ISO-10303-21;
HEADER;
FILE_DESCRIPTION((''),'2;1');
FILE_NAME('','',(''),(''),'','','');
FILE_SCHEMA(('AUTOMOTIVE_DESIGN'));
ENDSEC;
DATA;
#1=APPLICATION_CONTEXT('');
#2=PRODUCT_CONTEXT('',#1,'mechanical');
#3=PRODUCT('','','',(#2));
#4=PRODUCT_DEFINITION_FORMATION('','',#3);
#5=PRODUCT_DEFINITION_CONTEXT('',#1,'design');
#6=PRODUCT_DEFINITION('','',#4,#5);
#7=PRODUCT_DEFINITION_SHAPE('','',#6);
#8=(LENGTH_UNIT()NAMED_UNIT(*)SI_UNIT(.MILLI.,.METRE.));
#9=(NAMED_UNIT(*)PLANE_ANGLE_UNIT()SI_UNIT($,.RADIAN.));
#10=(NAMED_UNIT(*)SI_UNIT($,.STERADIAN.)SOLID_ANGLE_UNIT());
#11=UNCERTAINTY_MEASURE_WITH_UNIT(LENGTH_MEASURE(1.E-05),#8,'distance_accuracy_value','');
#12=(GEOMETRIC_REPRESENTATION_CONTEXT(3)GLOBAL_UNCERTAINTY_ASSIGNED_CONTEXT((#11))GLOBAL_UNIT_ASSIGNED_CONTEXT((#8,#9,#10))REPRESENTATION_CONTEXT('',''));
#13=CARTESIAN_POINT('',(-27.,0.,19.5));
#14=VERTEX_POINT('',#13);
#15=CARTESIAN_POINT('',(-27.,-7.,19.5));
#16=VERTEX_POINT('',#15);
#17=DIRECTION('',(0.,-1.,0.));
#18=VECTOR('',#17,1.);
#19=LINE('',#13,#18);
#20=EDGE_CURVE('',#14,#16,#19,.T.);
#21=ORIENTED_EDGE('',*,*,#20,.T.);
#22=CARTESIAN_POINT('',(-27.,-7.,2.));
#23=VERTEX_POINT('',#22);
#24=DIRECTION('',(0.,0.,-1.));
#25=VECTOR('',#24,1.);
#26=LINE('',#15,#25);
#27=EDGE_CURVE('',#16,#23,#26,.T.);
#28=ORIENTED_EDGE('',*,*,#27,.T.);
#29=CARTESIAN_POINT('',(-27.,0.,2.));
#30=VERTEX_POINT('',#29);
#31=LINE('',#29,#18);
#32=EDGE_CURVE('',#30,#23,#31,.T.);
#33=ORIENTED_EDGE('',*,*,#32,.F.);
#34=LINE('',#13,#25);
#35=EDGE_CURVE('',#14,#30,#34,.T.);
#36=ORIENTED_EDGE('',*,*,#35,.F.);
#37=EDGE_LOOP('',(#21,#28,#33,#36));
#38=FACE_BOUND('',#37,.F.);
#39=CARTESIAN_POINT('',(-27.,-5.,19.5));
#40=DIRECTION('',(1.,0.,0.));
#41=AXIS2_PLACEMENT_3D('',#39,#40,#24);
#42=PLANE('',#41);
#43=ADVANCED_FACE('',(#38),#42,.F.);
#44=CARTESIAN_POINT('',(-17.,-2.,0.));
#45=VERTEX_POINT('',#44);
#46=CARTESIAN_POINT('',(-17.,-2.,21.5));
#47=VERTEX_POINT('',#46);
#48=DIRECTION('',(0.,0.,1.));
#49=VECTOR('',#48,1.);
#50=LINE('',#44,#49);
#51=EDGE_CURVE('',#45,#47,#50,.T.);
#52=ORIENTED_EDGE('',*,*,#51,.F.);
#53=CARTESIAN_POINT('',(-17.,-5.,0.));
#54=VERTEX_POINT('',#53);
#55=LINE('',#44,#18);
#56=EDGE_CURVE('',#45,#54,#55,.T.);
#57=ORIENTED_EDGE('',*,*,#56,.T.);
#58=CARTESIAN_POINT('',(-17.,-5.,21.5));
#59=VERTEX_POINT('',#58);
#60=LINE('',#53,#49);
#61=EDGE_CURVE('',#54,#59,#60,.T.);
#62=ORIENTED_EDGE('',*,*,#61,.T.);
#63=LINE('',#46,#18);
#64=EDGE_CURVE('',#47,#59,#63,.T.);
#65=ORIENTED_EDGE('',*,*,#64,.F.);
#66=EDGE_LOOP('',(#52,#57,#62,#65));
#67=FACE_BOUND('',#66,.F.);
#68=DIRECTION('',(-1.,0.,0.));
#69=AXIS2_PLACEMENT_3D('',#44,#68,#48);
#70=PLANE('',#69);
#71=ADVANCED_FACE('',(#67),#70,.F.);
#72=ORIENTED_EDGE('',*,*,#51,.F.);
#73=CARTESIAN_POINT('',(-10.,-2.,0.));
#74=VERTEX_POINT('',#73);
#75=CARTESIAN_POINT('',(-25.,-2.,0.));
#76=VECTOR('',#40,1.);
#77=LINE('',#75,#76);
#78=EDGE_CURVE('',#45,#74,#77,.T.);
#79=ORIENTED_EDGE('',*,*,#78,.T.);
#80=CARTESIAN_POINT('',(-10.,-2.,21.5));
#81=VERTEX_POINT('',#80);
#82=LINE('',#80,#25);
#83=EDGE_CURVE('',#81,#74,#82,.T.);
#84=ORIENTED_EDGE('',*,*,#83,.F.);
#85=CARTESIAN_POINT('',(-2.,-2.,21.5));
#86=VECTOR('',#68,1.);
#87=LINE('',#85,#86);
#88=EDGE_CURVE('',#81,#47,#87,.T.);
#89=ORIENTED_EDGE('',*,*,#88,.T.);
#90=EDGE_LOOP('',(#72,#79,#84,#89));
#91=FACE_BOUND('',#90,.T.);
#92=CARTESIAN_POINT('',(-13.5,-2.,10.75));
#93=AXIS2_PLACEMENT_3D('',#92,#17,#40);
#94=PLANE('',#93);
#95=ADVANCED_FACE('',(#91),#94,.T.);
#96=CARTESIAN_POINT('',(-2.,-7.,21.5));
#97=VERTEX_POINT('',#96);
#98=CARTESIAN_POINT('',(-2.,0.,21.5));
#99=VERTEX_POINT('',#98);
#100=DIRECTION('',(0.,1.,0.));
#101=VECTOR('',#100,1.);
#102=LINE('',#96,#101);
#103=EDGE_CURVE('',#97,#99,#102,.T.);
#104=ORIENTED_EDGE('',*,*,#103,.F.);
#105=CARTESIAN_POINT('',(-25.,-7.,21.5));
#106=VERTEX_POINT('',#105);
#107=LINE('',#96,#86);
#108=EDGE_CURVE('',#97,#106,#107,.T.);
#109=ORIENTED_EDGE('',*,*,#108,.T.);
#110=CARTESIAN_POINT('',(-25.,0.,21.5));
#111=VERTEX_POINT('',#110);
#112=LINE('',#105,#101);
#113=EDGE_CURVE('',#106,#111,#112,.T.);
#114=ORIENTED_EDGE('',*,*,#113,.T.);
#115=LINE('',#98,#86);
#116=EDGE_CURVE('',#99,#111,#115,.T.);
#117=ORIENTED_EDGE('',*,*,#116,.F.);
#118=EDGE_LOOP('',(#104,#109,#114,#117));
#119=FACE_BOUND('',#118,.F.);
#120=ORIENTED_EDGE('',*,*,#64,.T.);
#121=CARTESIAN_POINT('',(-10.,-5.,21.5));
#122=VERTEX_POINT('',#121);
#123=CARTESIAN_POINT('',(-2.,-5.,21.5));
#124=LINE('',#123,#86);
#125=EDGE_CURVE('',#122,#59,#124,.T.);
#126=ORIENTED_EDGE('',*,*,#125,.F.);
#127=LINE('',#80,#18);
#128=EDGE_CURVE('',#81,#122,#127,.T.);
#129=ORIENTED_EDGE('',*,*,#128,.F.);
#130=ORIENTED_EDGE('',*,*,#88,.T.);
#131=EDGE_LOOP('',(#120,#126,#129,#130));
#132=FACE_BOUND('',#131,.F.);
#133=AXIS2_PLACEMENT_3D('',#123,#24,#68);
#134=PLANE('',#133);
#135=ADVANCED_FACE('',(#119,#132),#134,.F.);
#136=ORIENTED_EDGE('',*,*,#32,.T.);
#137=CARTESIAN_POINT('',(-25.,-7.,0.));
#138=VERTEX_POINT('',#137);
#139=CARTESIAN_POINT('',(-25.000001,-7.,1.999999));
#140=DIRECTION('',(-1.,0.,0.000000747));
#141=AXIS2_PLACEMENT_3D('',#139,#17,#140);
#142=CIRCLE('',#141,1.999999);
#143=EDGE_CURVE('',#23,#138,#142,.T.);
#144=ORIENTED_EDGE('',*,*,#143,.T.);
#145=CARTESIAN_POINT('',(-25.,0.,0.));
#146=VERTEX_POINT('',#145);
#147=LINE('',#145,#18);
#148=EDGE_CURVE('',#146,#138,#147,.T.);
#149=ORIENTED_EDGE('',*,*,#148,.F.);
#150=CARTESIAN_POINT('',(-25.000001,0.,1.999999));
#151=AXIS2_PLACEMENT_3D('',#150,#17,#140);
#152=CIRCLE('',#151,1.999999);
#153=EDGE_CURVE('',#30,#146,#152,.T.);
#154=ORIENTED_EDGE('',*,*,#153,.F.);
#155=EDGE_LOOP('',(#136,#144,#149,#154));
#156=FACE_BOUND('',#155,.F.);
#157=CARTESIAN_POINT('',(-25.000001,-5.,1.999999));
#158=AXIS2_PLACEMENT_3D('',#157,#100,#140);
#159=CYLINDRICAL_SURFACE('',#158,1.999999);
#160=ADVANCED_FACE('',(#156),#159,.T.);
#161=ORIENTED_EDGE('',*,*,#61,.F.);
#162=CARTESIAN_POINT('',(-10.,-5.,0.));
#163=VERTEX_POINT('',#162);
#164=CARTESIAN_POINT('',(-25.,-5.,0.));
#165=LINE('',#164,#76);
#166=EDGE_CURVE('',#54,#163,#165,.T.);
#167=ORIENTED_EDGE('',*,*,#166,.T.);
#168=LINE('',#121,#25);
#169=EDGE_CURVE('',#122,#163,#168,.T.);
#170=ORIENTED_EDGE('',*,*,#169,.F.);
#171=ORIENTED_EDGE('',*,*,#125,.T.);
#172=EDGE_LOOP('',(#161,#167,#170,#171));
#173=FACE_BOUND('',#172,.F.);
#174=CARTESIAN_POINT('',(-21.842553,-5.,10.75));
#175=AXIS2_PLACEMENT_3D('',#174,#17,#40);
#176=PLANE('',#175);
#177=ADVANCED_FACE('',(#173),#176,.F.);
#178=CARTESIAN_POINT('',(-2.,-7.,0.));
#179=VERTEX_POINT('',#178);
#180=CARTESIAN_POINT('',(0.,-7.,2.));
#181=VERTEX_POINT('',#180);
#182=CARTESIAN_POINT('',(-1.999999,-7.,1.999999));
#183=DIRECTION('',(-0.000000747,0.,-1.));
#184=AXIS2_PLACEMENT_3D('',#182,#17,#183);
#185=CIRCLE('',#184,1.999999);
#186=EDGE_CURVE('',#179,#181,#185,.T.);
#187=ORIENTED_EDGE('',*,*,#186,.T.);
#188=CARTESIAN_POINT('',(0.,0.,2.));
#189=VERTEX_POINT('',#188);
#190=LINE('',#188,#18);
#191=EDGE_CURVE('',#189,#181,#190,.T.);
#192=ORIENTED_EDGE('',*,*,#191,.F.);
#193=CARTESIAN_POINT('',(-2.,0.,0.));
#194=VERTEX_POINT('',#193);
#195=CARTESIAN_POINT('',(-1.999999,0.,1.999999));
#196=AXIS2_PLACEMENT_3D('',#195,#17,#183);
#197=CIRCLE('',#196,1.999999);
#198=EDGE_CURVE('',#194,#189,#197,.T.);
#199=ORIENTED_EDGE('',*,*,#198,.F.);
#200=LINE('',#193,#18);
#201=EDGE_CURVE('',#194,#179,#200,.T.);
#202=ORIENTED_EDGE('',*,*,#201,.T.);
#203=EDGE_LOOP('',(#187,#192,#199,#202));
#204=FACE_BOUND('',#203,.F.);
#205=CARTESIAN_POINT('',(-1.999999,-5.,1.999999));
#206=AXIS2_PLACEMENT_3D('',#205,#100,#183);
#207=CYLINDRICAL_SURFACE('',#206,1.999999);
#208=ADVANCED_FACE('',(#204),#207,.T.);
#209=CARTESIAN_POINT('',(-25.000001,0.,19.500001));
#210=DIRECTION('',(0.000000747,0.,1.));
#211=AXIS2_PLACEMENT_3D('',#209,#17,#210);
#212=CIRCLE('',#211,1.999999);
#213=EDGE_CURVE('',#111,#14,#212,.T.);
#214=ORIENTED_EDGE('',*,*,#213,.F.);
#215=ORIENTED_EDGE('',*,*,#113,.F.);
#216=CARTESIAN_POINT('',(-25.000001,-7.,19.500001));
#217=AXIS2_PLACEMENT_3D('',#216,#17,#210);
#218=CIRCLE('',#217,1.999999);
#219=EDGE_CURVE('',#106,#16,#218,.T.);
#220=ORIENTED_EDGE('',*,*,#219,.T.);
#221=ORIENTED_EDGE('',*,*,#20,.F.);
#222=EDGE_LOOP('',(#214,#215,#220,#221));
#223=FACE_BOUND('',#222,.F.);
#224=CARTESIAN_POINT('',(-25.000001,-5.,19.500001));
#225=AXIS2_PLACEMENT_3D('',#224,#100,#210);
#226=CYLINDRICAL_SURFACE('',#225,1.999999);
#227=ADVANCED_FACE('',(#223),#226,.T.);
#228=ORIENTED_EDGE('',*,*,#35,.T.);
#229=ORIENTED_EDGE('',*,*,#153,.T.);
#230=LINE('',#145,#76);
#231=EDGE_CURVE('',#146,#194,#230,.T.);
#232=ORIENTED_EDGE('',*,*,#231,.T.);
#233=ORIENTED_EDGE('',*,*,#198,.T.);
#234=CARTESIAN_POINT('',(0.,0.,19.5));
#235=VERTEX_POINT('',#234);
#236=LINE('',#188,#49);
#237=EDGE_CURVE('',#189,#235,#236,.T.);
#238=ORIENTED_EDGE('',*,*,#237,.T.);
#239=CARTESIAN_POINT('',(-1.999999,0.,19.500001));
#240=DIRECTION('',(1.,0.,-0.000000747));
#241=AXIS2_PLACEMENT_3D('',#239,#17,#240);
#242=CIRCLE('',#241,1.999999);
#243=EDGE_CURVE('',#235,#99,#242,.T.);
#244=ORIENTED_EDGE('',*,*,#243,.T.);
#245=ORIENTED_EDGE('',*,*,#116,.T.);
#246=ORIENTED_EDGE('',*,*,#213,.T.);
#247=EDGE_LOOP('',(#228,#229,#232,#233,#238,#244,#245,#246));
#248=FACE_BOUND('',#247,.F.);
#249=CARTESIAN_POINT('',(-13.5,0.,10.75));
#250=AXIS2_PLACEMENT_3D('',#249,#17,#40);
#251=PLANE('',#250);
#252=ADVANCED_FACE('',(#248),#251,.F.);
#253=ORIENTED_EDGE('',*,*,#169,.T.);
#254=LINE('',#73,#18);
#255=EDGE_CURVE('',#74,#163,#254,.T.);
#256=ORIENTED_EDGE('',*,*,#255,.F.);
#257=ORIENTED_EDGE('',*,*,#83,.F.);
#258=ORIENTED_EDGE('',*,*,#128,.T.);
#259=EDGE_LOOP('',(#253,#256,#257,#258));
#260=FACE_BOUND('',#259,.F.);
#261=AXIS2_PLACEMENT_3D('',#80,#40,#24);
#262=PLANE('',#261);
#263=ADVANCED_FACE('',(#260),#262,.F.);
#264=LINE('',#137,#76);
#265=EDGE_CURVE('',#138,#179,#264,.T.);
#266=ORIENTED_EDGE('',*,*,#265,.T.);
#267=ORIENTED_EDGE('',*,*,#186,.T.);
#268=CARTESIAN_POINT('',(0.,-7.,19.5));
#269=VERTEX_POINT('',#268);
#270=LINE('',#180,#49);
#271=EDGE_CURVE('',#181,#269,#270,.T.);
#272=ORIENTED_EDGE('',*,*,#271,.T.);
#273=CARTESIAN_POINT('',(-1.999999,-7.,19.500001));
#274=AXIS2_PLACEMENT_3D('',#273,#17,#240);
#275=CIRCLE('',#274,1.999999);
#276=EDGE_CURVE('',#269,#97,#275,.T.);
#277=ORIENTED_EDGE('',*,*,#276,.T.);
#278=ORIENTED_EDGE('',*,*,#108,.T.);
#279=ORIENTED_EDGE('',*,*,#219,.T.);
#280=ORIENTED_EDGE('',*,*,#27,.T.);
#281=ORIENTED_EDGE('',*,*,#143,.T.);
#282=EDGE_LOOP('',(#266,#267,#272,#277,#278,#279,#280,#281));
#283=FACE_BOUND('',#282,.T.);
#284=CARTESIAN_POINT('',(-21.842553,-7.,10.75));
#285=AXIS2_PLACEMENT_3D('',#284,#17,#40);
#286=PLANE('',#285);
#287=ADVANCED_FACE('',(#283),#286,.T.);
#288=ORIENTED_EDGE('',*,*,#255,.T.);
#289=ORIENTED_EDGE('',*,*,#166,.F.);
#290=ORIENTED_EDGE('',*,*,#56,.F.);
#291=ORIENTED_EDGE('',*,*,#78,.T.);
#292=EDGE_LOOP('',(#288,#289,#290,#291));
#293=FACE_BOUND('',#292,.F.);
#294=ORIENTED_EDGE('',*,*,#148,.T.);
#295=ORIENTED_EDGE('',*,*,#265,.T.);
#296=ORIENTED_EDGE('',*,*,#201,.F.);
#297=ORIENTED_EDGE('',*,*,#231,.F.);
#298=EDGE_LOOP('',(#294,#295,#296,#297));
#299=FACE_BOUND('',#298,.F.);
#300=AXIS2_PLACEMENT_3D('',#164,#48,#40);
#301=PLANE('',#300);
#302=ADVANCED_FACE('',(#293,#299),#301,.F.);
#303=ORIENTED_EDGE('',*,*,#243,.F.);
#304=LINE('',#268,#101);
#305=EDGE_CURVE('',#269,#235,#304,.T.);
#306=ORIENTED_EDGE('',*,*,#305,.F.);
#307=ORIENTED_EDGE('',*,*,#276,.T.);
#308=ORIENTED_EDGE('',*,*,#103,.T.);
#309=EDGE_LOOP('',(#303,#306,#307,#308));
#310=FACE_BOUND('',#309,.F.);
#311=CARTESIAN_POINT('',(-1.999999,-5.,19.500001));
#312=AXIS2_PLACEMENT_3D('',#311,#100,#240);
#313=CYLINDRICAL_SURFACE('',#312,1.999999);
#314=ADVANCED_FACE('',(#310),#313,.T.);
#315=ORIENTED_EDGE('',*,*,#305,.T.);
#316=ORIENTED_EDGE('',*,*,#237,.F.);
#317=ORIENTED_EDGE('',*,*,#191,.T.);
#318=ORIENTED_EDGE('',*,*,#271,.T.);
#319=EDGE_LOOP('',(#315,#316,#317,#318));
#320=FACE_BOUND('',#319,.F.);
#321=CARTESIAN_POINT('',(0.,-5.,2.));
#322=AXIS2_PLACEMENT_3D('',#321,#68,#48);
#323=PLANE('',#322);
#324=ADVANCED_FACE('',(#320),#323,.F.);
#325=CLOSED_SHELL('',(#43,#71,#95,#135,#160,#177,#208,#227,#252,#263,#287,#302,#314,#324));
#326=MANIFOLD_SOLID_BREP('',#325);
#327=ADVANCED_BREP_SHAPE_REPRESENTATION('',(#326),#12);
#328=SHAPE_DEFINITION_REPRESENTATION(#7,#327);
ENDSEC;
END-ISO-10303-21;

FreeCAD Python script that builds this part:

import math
import FreeCAD as App
import Part
import Sketcher
Q = App.Units.Quantity

doc = App.newDocument("Part")
body = doc.addObject("PartDesign::Body", "Body")

# Sketch on XZ plane
sketch1 = body.newObject("Sketcher::SketchObject", "Sketch")
sketch1.AttachmentSupport = (doc.getObject("XZ_Plane"), [""])
sketch1.MapMode = "FlatFace"
sketch1.addGeometry(Part.LineSegment(App.Vector(-25, 0, 0), App.Vector(-2, 0, 0)), False)
sketch1.addGeometry(Part.ArcOfCircle(Part.Circle(App.Vector(-2, 2, 0), App.Vector(0, 0, 1), 2), math.radians(-90), math.radians(0)), False)
sketch1.addGeometry(Part.LineSegment(App.Vector(0, 2, 0), App.Vector(0, 19.5, 0)), False)
sketch1.addGeometry(Part.ArcOfCircle(Part.Circle(App.Vector(-2, 19.5, 0), App.Vector(0, 0, 1), 2), math.radians(0), math.radians(90)), False)
sketch1.addGeometry(Part.LineSegment(App.Vector(-2, 21.5, 0), App.Vector(-25, 21.5, 0)), False)
sketch1.addGeometry(Part.ArcOfCircle(Part.Circle(App.Vector(-25, 19.5, 0), App.Vector(0, 0, 1), 2), math.radians(90), math.radians(180)), False)
sketch1.addGeometry(Part.LineSegment(App.Vector(-27, 19.5, 0), App.Vector(-27, 2, 0)), False)
sketch1.addGeometry(Part.ArcOfCircle(Part.Circle(App.Vector(-25, 2, 0), App.Vector(0, 0, 1), 2), math.radians(180), math.radians(270)), False)
sketch1.addConstraint(Sketcher.Constraint("Tangent", 0, 2, 1, 1))
sketch1.addConstraint(Sketcher.Constraint("Tangent", 1, 2, 2, 1))
sketch1.addConstraint(Sketcher.Constraint("Tangent", 2, 2, 3, 1))
sketch1.addConstraint(Sketcher.Constraint("Tangent", 3, 2, 4, 1))
sketch1.addConstraint(Sketcher.Constraint("Tangent", 4, 2, 5, 1))
sketch1.addConstraint(Sketcher.Constraint("Tangent", 5, 2, 6, 1))
sketch1.addConstraint(Sketcher.Constraint("Tangent", 6, 2, 7, 1))
sketch1.addConstraint(Sketcher.Constraint("Tangent", 7, 2, 0, 1))
sketch1.addConstraint(Sketcher.Constraint("Horizontal", 0))
sketch1.addConstraint(Sketcher.Constraint("Vertical", 2))
sketch1.addConstraint(Sketcher.Constraint("Horizontal", 4))
sketch1.addConstraint(Sketcher.Constraint("Vertical", 6))
sketch1.addConstraint(Sketcher.Constraint("Equal", 1, 3))
sketch1.addConstraint(Sketcher.Constraint("Equal", 3, 5))
sketch1.addConstraint(Sketcher.Constraint("Equal", 5, 7))
sketch1.addConstraint(Sketcher.Constraint("PointOnObject", 0, 2, -1))
sketch1.addConstraint(Sketcher.Constraint("PointOnObject", 1, 2, -2))
sketch1.addConstraint(Sketcher.Constraint("Radius", 1, Q("1.999999 mm")))
sketch1.addConstraint(Sketcher.Constraint("DistanceX", 0, 1, 0, 2, Q("23 mm")))
sketch1.addConstraint(Sketcher.Constraint("DistanceY", 2, 1, 2, 2, Q("17.5 mm")))
pad1 = body.newObject("PartDesign::Pad", "Pad")
pad1.Profile = sketch1
pad1.Length = 2

# Sketch on XZ plane
sketch2 = body.newObject("Sketcher::SketchObject", "Sketch001")
sketch2.AttachmentSupport = (doc.getObject("XZ_Plane"), [""])
sketch2.MapMode = "FlatFace"
sketch2.AttachmentOffset = App.Placement(App.Vector(0, 0, 2), App.Rotation())
sketch2.addGeometry(Part.LineSegment(App.Vector(-25, 0, 0), App.Vector(-17, 0, 0)), False)
sketch2.addGeometry(Part.LineSegment(App.Vector(-17, 0, 0), App.Vector(-17, 21.5, 0)), False)
sketch2.addGeometry(Part.LineSegment(App.Vector(-17, 21.5, 0), App.Vector(-25, 21.5, 0)), False)
sketch2.addGeometry(Part.ArcOfCircle(Part.Circle(App.Vector(-25, 19.5, 0), App.Vector(0, 0, 1), 2), math.radians(90), math.radians(180)), False)
sketch2.addGeometry(Part.LineSegment(App.Vector(-27, 19.5, 0), App.Vector(-27, 2, 0)), False)
sketch2.addGeometry(Part.ArcOfCircle(Part.Circle(App.Vector(-25, 2, 0), App.Vector(0, 0, 1), 2), math.radians(180), math.radians(270)), False)
sketch2.addGeometry(Part.LineSegment(App.Vector(-10, 0, 0), App.Vector(-2, 0, 0)), False)
sketch2.addGeometry(Part.ArcOfCircle(Part.Circle(App.Vector(-2, 2, 0), App.Vector(0, 0, 1), 2), math.radians(-90), math.radians(0)), False)
sketch2.addGeometry(Part.LineSegment(App.Vector(0, 2, 0), App.Vector(0, 19.5, 0)), False)
sketch2.addGeometry(Part.ArcOfCircle(Part.Circle(App.Vector(-2, 19.5, 0), App.Vector(0, 0, 1), 2), math.radians(0), math.radians(90)), False)
sketch2.addGeometry(Part.LineSegment(App.Vector(-2, 21.5, 0), App.Vector(-10, 21.5, 0)), False)
sketch2.addGeometry(Part.LineSegment(App.Vector(-10, 21.5, 0), App.Vector(-10, 0, 0)), False)
sketch2.addConstraint(Sketcher.Constraint("Coincident", 0, 2, 1, 1))
sketch2.addConstraint(Sketcher.Constraint("Coincident", 1, 2, 2, 1))
sketch2.addConstraint(Sketcher.Constraint("Tangent", 2, 2, 3, 1))
sketch2.addConstraint(Sketcher.Constraint("Tangent", 3, 2, 4, 1))
sketch2.addConstraint(Sketcher.Constraint("Tangent", 4, 2, 5, 1))
sketch2.addConstraint(Sketcher.Constraint("Tangent", 5, 2, 0, 1))
sketch2.addConstraint(Sketcher.Constraint("Tangent", 6, 2, 7, 1))
sketch2.addConstraint(Sketcher.Constraint("Tangent", 7, 2, 8, 1))
sketch2.addConstraint(Sketcher.Constraint("Tangent", 8, 2, 9, 1))
sketch2.addConstraint(Sketcher.Constraint("Tangent", 9, 2, 10, 1))
sketch2.addConstraint(Sketcher.Constraint("Coincident", 10, 2, 11, 1))
sketch2.addConstraint(Sketcher.Constraint("Coincident", 11, 2, 6, 1))
sketch2.addConstraint(Sketcher.Constraint("Horizontal", 0))
sketch2.addConstraint(Sketcher.Constraint("Vertical", 1))
sketch2.addConstraint(Sketcher.Constraint("Horizontal", 2))
sketch2.addConstraint(Sketcher.Constraint("Vertical", 4))
sketch2.addConstraint(Sketcher.Constraint("Horizontal", 6))
sketch2.addConstraint(Sketcher.Constraint("Vertical", 8))
sketch2.addConstraint(Sketcher.Constraint("Horizontal", 10))
sketch2.addConstraint(Sketcher.Constraint("Vertical", 11))
sketch2.addConstraint(Sketcher.Constraint("Equal", 3, 5))
sketch2.addConstraint(Sketcher.Constraint("Equal", 5, 7))
sketch2.addConstraint(Sketcher.Constraint("Equal", 7, 9))
sketch2.addConstraint(Sketcher.Constraint("PointOnObject", 0, 2, -1))
sketch2.addConstraint(Sketcher.Constraint("PointOnObject", 6, 2, -1))
sketch2.addConstraint(Sketcher.Constraint("PointOnObject", 7, 2, -2))
sketch2.addConstraint(Sketcher.Constraint("Horizontal", 3, 3, 9, 3))
sketch2.addConstraint(Sketcher.Constraint("Equal", 2, 6))
sketch2.addConstraint(Sketcher.Constraint("Radius", 3, Q("1.999999 mm")))
sketch2.addConstraint(Sketcher.Constraint("DistanceX", 0, 1, 0, 2, Q("8 mm")))
sketch2.addConstraint(Sketcher.Constraint("DistanceY", 1, 1, 1, 2, Q("21.5 mm")))
sketch2.addConstraint(Sketcher.Constraint("DistanceX", 3, 3, -1, 1, Q("25.000001 mm")))
pad2 = body.newObject("PartDesign::Pad", "Pad001")
pad2.Profile = sketch2
pad2.Length = 3

# Sketch on XZ plane
sketch3 = body.newObject("Sketcher::SketchObject", "Sketch002")
sketch3.AttachmentSupport = (doc.getObject("XZ_Plane"), [""])
sketch3.MapMode = "FlatFace"
sketch3.AttachmentOffset = App.Placement(App.Vector(0, 0, 5), App.Rotation())
sketch3.addGeometry(Part.ArcOfCircle(Part.Circle(App.Vector(-25, 19.5, 0), App.Vector(0, 0, 1), 2), math.radians(90), math.radians(180)), False)
sketch3.addGeometry(Part.LineSegment(App.Vector(-27, 19.5, 0), App.Vector(-27, 2, 0)), False)
sketch3.addGeometry(Part.ArcOfCircle(Part.Circle(App.Vector(-25, 2, 0), App.Vector(0, 0, 1), 2), math.radians(180), math.radians(270)), False)
sketch3.addGeometry(Part.LineSegment(App.Vector(-25, 0, 0), App.Vector(-2, 0, 0)), False)
sketch3.addGeometry(Part.ArcOfCircle(Part.Circle(App.Vector(-2, 2, 0), App.Vector(0, 0, 1), 2), math.radians(-90), math.radians(0)), False)
sketch3.addGeometry(Part.LineSegment(App.Vector(0, 2, 0), App.Vector(0, 19.5, 0)), False)
sketch3.addGeometry(Part.ArcOfCircle(Part.Circle(App.Vector(-2, 19.5, 0), App.Vector(0, 0, 1), 2), math.radians(0), math.radians(90)), False)
sketch3.addGeometry(Part.LineSegment(App.Vector(-2, 21.5, 0), App.Vector(-25, 21.5, 0)), False)
sketch3.addConstraint(Sketcher.Constraint("Tangent", 0, 2, 1, 1))
sketch3.addConstraint(Sketcher.Constraint("Tangent", 1, 2, 2, 1))
sketch3.addConstraint(Sketcher.Constraint("Tangent", 2, 2, 3, 1))
sketch3.addConstraint(Sketcher.Constraint("Tangent", 3, 2, 4, 1))
sketch3.addConstraint(Sketcher.Constraint("Tangent", 4, 2, 5, 1))
sketch3.addConstraint(Sketcher.Constraint("Tangent", 5, 2, 6, 1))
sketch3.addConstraint(Sketcher.Constraint("Tangent", 6, 2, 7, 1))
sketch3.addConstraint(Sketcher.Constraint("Tangent", 7, 2, 0, 1))
sketch3.addConstraint(Sketcher.Constraint("Vertical", 1))
sketch3.addConstraint(Sketcher.Constraint("Horizontal", 3))
sketch3.addConstraint(Sketcher.Constraint("Vertical", 5))
sketch3.addConstraint(Sketcher.Constraint("Horizontal", 7))
sketch3.addConstraint(Sketcher.Constraint("Equal", 0, 2))
sketch3.addConstraint(Sketcher.Constraint("Equal", 2, 4))
sketch3.addConstraint(Sketcher.Constraint("Equal", 4, 6))
sketch3.addConstraint(Sketcher.Constraint("PointOnObject", 2, 2, -1))
sketch3.addConstraint(Sketcher.Constraint("PointOnObject", 4, 2, -2))
sketch3.addConstraint(Sketcher.Constraint("Radius", 0, Q("1.999999 mm")))
sketch3.addConstraint(Sketcher.Constraint("DistanceX", 3, 1, 3, 2, Q("23 mm")))
sketch3.addConstraint(Sketcher.Constraint("DistanceY", 1, 2, 1, 1, Q("17.5 mm")))
pad3 = body.newObject("PartDesign::Pad", "Pad002")
pad3.Profile = sketch3
pad3.Length = 2

doc.recompute()
